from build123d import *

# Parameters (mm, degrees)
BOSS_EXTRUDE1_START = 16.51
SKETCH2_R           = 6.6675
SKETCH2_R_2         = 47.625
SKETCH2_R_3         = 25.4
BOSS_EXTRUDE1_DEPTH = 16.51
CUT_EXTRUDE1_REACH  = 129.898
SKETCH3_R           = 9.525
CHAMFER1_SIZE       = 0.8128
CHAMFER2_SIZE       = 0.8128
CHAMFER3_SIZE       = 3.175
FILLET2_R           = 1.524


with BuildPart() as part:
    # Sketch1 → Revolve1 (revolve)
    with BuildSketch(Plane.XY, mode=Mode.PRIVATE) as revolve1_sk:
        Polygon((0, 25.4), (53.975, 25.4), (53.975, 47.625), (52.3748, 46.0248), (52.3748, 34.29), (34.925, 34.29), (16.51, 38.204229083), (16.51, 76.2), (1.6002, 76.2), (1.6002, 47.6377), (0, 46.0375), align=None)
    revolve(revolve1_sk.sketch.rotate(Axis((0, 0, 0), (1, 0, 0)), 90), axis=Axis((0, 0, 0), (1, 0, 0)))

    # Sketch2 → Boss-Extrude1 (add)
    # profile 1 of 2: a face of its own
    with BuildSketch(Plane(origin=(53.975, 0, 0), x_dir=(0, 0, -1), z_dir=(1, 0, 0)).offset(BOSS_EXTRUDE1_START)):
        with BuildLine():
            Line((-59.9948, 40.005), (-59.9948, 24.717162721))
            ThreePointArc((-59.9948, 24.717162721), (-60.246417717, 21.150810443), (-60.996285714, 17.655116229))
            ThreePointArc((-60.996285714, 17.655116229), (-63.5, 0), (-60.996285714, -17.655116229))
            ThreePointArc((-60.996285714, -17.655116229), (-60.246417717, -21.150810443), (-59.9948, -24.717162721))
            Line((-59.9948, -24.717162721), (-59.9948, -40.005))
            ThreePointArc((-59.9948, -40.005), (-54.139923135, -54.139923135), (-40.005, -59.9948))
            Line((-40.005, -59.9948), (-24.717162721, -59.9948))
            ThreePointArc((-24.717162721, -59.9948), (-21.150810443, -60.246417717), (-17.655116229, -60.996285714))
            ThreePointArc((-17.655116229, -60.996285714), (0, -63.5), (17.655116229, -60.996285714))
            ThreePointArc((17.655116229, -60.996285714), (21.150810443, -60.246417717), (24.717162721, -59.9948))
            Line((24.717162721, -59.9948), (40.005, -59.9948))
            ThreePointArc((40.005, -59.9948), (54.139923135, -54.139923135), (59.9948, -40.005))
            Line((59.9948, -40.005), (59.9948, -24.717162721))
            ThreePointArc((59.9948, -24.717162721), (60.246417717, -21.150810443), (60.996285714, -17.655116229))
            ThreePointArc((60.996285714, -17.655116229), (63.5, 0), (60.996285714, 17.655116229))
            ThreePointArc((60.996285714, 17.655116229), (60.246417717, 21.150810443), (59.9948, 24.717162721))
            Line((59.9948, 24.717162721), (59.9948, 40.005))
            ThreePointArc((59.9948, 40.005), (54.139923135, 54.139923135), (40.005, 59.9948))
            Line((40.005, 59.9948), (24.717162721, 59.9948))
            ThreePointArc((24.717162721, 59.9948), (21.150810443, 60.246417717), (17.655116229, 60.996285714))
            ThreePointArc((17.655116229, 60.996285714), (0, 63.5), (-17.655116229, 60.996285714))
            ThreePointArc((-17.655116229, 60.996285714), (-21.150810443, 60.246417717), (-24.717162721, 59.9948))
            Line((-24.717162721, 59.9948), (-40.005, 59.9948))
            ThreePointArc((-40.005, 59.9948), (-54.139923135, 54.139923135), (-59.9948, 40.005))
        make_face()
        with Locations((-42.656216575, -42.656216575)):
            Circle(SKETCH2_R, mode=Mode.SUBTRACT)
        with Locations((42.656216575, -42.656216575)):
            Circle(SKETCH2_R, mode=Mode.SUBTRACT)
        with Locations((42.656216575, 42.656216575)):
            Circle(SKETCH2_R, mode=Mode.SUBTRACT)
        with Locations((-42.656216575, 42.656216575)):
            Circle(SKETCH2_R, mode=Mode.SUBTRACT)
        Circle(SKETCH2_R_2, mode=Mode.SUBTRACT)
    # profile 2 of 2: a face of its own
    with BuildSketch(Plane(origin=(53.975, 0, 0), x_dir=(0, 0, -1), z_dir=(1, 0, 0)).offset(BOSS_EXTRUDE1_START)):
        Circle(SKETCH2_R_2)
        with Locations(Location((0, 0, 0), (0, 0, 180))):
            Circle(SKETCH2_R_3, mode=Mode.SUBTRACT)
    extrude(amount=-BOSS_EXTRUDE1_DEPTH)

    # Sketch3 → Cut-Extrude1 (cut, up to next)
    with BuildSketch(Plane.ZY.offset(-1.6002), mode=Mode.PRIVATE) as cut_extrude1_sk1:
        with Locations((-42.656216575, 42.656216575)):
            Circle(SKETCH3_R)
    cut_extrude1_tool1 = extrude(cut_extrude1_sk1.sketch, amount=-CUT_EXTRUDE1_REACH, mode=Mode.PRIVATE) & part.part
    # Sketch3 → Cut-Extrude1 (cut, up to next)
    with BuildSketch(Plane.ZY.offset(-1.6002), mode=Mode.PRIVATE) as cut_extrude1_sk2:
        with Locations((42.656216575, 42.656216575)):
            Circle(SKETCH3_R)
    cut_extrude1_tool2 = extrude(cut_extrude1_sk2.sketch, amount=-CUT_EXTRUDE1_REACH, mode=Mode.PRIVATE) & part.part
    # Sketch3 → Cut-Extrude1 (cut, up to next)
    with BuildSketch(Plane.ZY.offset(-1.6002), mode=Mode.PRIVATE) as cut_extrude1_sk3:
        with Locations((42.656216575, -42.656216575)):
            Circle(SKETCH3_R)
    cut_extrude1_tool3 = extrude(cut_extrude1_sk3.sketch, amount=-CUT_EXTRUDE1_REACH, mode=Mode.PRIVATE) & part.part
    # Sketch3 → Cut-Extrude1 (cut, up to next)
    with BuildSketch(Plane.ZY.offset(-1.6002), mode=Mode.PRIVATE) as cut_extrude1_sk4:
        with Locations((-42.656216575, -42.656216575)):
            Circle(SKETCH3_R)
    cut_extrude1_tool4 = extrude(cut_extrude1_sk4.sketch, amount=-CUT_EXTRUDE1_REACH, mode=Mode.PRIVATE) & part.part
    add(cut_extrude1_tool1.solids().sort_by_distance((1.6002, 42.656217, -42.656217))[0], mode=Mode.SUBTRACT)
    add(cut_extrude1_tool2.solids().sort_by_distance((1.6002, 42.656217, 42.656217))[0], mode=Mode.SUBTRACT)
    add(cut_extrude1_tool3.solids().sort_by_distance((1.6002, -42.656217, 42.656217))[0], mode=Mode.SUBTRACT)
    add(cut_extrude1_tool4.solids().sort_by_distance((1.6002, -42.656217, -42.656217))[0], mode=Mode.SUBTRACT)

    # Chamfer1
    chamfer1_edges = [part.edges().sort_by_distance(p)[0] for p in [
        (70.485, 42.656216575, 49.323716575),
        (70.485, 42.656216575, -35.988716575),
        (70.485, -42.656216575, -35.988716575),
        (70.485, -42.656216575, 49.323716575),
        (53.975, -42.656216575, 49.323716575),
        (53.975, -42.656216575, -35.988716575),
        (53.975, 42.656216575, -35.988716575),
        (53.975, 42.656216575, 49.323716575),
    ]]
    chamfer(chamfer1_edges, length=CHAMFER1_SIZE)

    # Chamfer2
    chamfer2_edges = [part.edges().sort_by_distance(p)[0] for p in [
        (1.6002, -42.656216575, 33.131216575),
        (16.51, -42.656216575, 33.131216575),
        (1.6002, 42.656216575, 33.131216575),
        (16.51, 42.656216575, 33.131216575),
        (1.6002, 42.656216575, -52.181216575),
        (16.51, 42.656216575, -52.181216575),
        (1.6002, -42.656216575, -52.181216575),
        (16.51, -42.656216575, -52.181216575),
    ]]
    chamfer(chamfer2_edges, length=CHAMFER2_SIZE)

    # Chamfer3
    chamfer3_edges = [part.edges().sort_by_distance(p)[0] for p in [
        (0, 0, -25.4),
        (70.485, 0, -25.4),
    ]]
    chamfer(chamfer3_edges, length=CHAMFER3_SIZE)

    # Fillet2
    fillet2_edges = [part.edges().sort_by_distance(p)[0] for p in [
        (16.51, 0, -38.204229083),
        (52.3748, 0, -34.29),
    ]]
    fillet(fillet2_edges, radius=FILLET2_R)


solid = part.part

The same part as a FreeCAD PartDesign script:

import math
import FreeCAD as App
import Part
import Sketcher

V = App.Vector
Q = App.Units.Quantity


def edges_at(feature, points):
    """Names of the edges that pass closest to the given points."""
    edges = feature.Shape.Edges
    near = lambda p: min(range(len(edges)), key=lambda i: edges[i].distToShape(Part.Vertex(*p))[0])
    return sorted({f"Edge{near(p) + 1}" for p in points})


def add_polygon(sketch, points):
    """Adds a closed chain of lines whose ends are joined by coincident constraints."""
    first, n = sketch.GeometryCount, len(points)
    for a, b in zip(points, points[1:] + points[:1]):
        sketch.addGeometry(Part.LineSegment(App.Vector(*a, 0), App.Vector(*b, 0)), False)
    for i in range(n):
        sketch.addConstraint(Sketcher.Constraint("Coincident", first + i, 2, first + (i + 1) % n, 1))

doc = App.newDocument("Part")
body = doc.addObject("PartDesign::Body", "Body")

# Sketch on XY plane
sketch1 = body.newObject("Sketcher::SketchObject", "Sketch")
sketch1.AttachmentSupport = (doc.getObject("XY_Plane"), [""])
sketch1.MapMode = "FlatFace"
add_polygon(sketch1, [(0, 25.4), (54, 25.4), (54, 47.6), (52.4, 46), (52.4, 34.3), (34.9, 34.3), (16.5, 38.2), (16.5, 76.2), (1.6, 76.2), (1.6, 47.6), (0, 46)])  # lines 0-10
sketch1.addConstraint([
    Sketcher.Constraint("Horizontal", 0),
    Sketcher.Constraint("Vertical", 1),
    Sketcher.Constraint("Vertical", 3),
    Sketcher.Constraint("Horizontal", 4),
    Sketcher.Constraint("Vertical", 6),
    Sketcher.Constraint("Horizontal", 7),
    Sketcher.Constraint("Vertical", 8),
    Sketcher.Constraint("Vertical", 10),
    Sketcher.Constraint("PointOnObject", 9, 2, -2),
    Sketcher.Constraint("Parallel", 2, 9),
    Sketcher.Constraint("Equal", 2, 9),
    Sketcher.Constraint("DistanceY", -1, 1, 0, 2, Q("1 in")),
    Sketcher.Constraint("DistanceY", -1, 1, 6, 2, Q("3 in")),
    Sketcher.Constraint("Angle", 2, Q("-135 deg")),
    Sketcher.Constraint("Angle", 5, Q("168 deg")),
    Sketcher.Constraint("DistanceX", 0, 1, 0, 2, Q("2.125 in")),
    Sketcher.Constraint("DistanceX", 4, 2, 4, 1, Q("0.687 in")),
    Sketcher.Constraint("DistanceX", 7, 2, 7, 1, Q("0.587 in")),
    Sketcher.Constraint("DistanceY", 1, 1, 1, 2, Q("0.875 in")),
    Sketcher.Constraint("DistanceY", 3, 2, 3, 1, Q("0.462 in")),
    Sketcher.Constraint("DistanceY", 10, 2, 10, 1, Q("0.8125 in")),
    Sketcher.Constraint("DistanceY", -1, 1, 3, 2, Q("1.35 in")),
])
revolution = body.newObject("PartDesign::Revolution", "Revolution")
revolution.Profile = sketch1
revolution.ReferenceAxis = (sketch1, ["H_Axis"])
revolution.Angle = 360

# Sketch on YZ plane
sketch2 = body.newObject("Sketcher::SketchObject", "Sketch001")
sketch2.AttachmentSupport = (doc.getObject("YZ_Plane"), [""])
sketch2.MapMode = "FlatFace"
sketch2.AttachmentOffset = App.Placement(V(0, 0, 2.775 * 25.4), App.Rotation())
sketch2.addGeometry([
    Part.LineSegment(V(40, 60, 0), V(25, 60, 0)),  # 0
    Part.ArcOfCircle(Part.Circle(V(25, 85, 0), V(0, 0, 1), 25), math.radians(-106.14), math.radians(-90)),  # 1
    Part.ArcOfCircle(Part.Circle(V(0, 0, 0), V(0, 0, 1), 63), math.radians(74), math.radians(106)),  # 2
    Part.ArcOfCircle(Part.Circle(V(-25, 85, 0), V(0, 0, 1), 25), math.radians(-90), math.radians(-73.86)),  # 3
    Part.LineSegment(V(-25, 60, 0), V(-40, 60, 0)),  # 4
    Part.ArcOfCircle(Part.Circle(V(-40, 40, 0), V(0, 0, 1), 20), math.radians(90), math.radians(180)),  # 5
    Part.LineSegment(V(-60, 40, 0), V(-60, 25, 0)),  # 6
    Part.ArcOfCircle(Part.Circle(V(-85, 25, 0), V(0, 0, 1), 25), math.radians(-16.14), math.radians(0)),  # 7
    Part.ArcOfCircle(Part.Circle(V(0, 0, 0), V(0, 0, 1), 63), math.radians(164), math.radians(196)),  # 8
    Part.ArcOfCircle(Part.Circle(V(-85, -25, 0), V(0, 0, 1), 25), math.radians(0), math.radians(16.14)),  # 9
    Part.LineSegment(V(-60, -25, 0), V(-60, -40, 0)),  # 10
    Part.ArcOfCircle(Part.Circle(V(-40, -40, 0), V(0, 0, 1), 20), math.radians(180), math.radians(270)),  # 11
    Part.LineSegment(V(-40, -60, 0), V(-25, -60, 0)),  # 12
    Part.ArcOfCircle(Part.Circle(V(-25, -85, 0), V(0, 0, 1), 25), math.radians(73.86), math.radians(90)),  # 13
    Part.ArcOfCircle(Part.Circle(V(0, 0, 0), V(0, 0, 1), 63), math.radians(-106), math.radians(-74)),  # 14
    Part.ArcOfCircle(Part.Circle(V(25, -85, 0), V(0, 0, 1), 25), math.radians(90), math.radians(106.14)),  # 15
    Part.LineSegment(V(25, -60, 0), V(40, -60, 0)),  # 16
    Part.ArcOfCircle(Part.Circle(V(40, -40, 0), V(0, 0, 1), 20), math.radians(-90), math.radians(0)),  # 17
    Part.LineSegment(V(60, -40, 0), V(60, -25, 0)),  # 18
    Part.ArcOfCircle(Part.Circle(V(85, -25, 0), V(0, 0, 1), 25), math.radians(163.86), math.radians(180)),  # 19
    Part.ArcOfCircle(Part.Circle(V(0, 0, 0), V(0, 0, 1), 63), math.radians(-16), math.radians(16)),  # 20
    Part.ArcOfCircle(Part.Circle(V(85, 25, 0), V(0, 0, 1), 25), math.radians(180), math.radians(196.14)),  # 21
    Part.LineSegment(V(60, 25, 0), V(60, 40, 0)),  # 22
    Part.ArcOfCircle(Part.Circle(V(40, 40, 0), V(0, 0, 1), 20), math.radians(0), math.radians(90)),  # 23
    Part.Circle(V(-43, 43, 0), V(0, 0, 1), 7),  # 24
    Part.Circle(V(-43, -43, 0), V(0, 0, 1), 7),  # 25
    Part.Circle(V(43, 43, 0), V(0, 0, 1), 7),  # 26
    Part.Circle(V(43, -43, 0), V(0, 0, 1), 7),  # 27
    Part.Circle(V(0, 0, 0), V(0, 0, 1), 25),  # 28
], False)
sketch2.addConstraint([
    Sketcher.Constraint("Tangent", 0, 2, 1, 2),
    Sketcher.Constraint("Tangent", 1, 1, 2, 1),
    Sketcher.Constraint("Tangent", 2, 2, 3, 2),
    Sketcher.Constraint("Tangent", 3, 1, 4, 1),
    Sketcher.Constraint("Tangent", 4, 2, 5, 1),
    Sketcher.Constraint("Tangent", 5, 2, 6, 1),
    Sketcher.Constraint("Tangent", 6, 2, 7, 2),
    Sketcher.Constraint("Tangent", 7, 1, 8, 1),
    Sketcher.Constraint("Tangent", 8, 2, 9, 2),
    Sketcher.Constraint("Tangent", 9, 1, 10, 1),
    Sketcher.Constraint("Tangent", 10, 2, 11, 1),
    Sketcher.Constraint("Tangent", 11, 2, 12, 1),
    Sketcher.Constraint("Tangent", 12, 2, 13, 2),
    Sketcher.Constraint("Tangent", 13, 1, 14, 1),
    Sketcher.Constraint("Tangent", 14, 2, 15, 2),
    Sketcher.Constraint("Tangent", 15, 1, 16, 1),
    Sketcher.Constraint("Tangent", 16, 2, 17, 1),
    Sketcher.Constraint("Tangent", 17, 2, 18, 1),
    Sketcher.Constraint("Tangent", 18, 2, 19, 2),
    Sketcher.Constraint("Tangent", 19, 1, 20, 1),
    Sketcher.Constraint("Tangent", 20, 2, 21, 2),
    Sketcher.Constraint("Tangent", 21, 1, 22, 1),
    Sketcher.Constraint("Tangent", 22, 2, 23, 1),
    Sketcher.Constraint("Tangent", 23, 2, 0, 1),
    Sketcher.Constraint("Horizontal", 0),
    Sketcher.Constraint("Horizontal", 4),
    Sketcher.Constraint("Vertical", 6),
    Sketcher.Constraint("Vertical", 10),
    Sketcher.Constraint("Horizontal", 12),
    Sketcher.Constraint("Horizontal", 16),
    Sketcher.Constraint("Vertical", 18),
    Sketcher.Constraint("Vertical", 22),
    Sketcher.Constraint("Coincident", 2, 3, -1, 1),
    Sketcher.Constraint("Coincident", 8, 3, -1, 1),
    Sketcher.Constraint("Coincident", 14, 3, -1, 1),
    Sketcher.Constraint("Coincident", 20, 3, -1, 1),
    Sketcher.Constraint("Coincident", 28, 3, -1, 1),
    Sketcher.Constraint("Equal", 1, 3),
    Sketcher.Constraint("Equal", 3, 7),
    Sketcher.Constraint("Equal", 2, 8),
    Sketcher.Constraint("Equal", 7, 9),
    Sketcher.Constraint("Equal", 5, 11),
    Sketcher.Constraint("Equal", 9, 13),
    Sketcher.Constraint("Equal", 8, 14),
    Sketcher.Constraint("Equal", 13, 15),
    Sketcher.Constraint("Equal", 11, 17),
    Sketcher.Constraint("Equal", 15, 19),
    Sketcher.Constraint("Equal", 14, 20),
    Sketcher.Constraint("Equal", 19, 21),
    Sketcher.Constraint("Equal", 17, 23),
    Sketcher.Constraint("Equal", 24, 25),
    Sketcher.Constraint("Equal", 25, 26),
    Sketcher.Constraint("Equal", 26, 27),
    Sketcher.Constraint("Equal", 21, 28),
    Sketcher.Constraint("Symmetric", 5, 3, 17, 3, -1, 1),
    Sketcher.Constraint("Symmetric", 11, 3, 23, 3, -1, 1),
    Sketcher.Constraint("Symmetric", 25, 3, 26, 3, -1, 1),
    Sketcher.Constraint("Symmetric", 24, 3, 27, 3, -1, 1),
    Sketcher.Constraint("Symmetric", 11, 3, 17, 3, -2),
    Sketcher.Constraint("Symmetric", 24, 3, 26, 3, -2),
    Sketcher.Constraint("Equal", 16, 6),
    Sketcher.Constraint("Diameter", 28, Q("2 in")),
    Sketcher.Constraint("Radius", 2, Q("2.5 in")),
    Sketcher.Constraint("Diameter", 24, Q("0.525 in")),
    Sketcher.Constraint("Radius", 5, Q("0.787 in")),
    Sketcher.Constraint("DistanceY", 11, 3, 5, 3, Q("3.15 in")),
    Sketcher.Constraint("DistanceX", 1, 1, 26, 3, 25.0011),
    Sketcher.Constraint("DistanceY", 7, 1, 24, 3, 25.0011),
])
pad1 = body.newObject("PartDesign::Pad", "Pad")
pad1.Profile = sketch2
pad1.Length = Q("0.65 in")
pad1.Reversed = True

# Sketch on YZ plane
sketch3 = body.newObject("Sketcher::SketchObject", "Sketch002")
sketch3.AttachmentSupport = (doc.getObject("YZ_Plane"), [""])
sketch3.MapMode = "FlatFace"
sketch3.AttachmentOffset = App.Placement(V(0, 0, 0.063 * 25.4), App.Rotation())
sketch3.addGeometry(Part.Circle(V(43, -43, 0), V(0, 0, 1), 10), False)
sketch3.addConstraint([
    Sketcher.Constraint("Diameter", 0, Q("0.75 in")),
    Sketcher.Constraint("DistanceX", -1, 1, 0, 3, 42.656217),
    Sketcher.Constraint("DistanceY", 0, 3, -1, 1, 42.656217),
])
pocket1 = body.newObject("PartDesign::Pocket", "Pocket")
pocket1.Profile = sketch3
pocket1.Type = "UpToFirst"
pocket1.Reversed = True

# Sketch on YZ plane
sketch4 = body.newObject("Sketcher::SketchObject", "Sketch003")
sketch4.AttachmentSupport = (doc.getObject("YZ_Plane"), [""])
sketch4.MapMode = "FlatFace"
sketch4.AttachmentOffset = App.Placement(V(0, 0, 0.063 * 25.4), App.Rotation())
sketch4.addGeometry(Part.Circle(V(43, 43, 0), V(0, 0, 1), 10), False)
sketch4.addConstraint([
    Sketcher.Constraint("Diameter", 0, Q("0.75 in")),
    Sketcher.Constraint("DistanceX", -1, 1, 0, 3, 42.656217),
    Sketcher.Constraint("DistanceY", -1, 1, 0, 3, 42.656217),
])
pocket2 = body.newObject("PartDesign::Pocket", "Pocket001")
pocket2.Profile = sketch4
pocket2.Type = "UpToFirst"
pocket2.Reversed = True

# Sketch on YZ plane
sketch5 = body.newObject("Sketcher::SketchObject", "Sketch004")
sketch5.AttachmentSupport = (doc.getObject("YZ_Plane"), [""])
sketch5.MapMode = "FlatFace"
sketch5.AttachmentOffset = App.Placement(V(0, 0, 0.063 * 25.4), App.Rotation())
sketch5.addGeometry(Part.Circle(V(-43, 43, 0), V(0, 0, 1), 10), False)
sketch5.addConstraint([
    Sketcher.Constraint("Diameter", 0, Q("0.75 in")),
    Sketcher.Constraint("DistanceX", 0, 3, -1, 1, 42.656217),
    Sketcher.Constraint("DistanceY", -1, 1, 0, 3, 42.656217),
])
pocket3 = body.newObject("PartDesign::Pocket", "Pocket002")
pocket3.Profile = sketch5
pocket3.Type = "UpToFirst"
pocket3.Reversed = True

# Sketch on YZ plane
sketch6 = body.newObject("Sketcher::SketchObject", "Sketch005")
sketch6.AttachmentSupport = (doc.getObject("YZ_Plane"), [""])
sketch6.MapMode = "FlatFace"
sketch6.AttachmentOffset = App.Placement(V(0, 0, 0.063 * 25.4), App.Rotation())
sketch6.addGeometry(Part.Circle(V(-43, -43, 0), V(0, 0, 1), 10), False)
sketch6.addConstraint([
    Sketcher.Constraint("Diameter", 0, Q("0.75 in")),
    Sketcher.Constraint("DistanceX", 0, 3, -1, 1, 42.656217),
    Sketcher.Constraint("DistanceY", 0, 3, -1, 1, 42.656217),
])
pocket4 = body.newObject("PartDesign::Pocket", "Pocket003")
pocket4.Profile = sketch6
pocket4.Type = "UpToFirst"
pocket4.Reversed = True
doc.recompute()

chamfer = body.newObject("PartDesign::Chamfer", "Chamfer")
chamfer.Base = (pocket4, edges_at(pocket4, [
    (70.485, 42.656, 49.324),
    (70.485, 42.656, -35.989),
    (70.485, -42.656, -35.989),
    (70.485, -42.656, 49.324),
    (53.975, -42.656, 49.324),
    (53.975, -42.656, -35.989),
    (53.975, 42.656, -35.989),
    (53.975, 42.656, 49.324),
]))
chamfer.Size = Q("0.032 in")
doc.recompute()

chamfer2 = body.newObject("PartDesign::Chamfer", "Chamfer001")
chamfer2.Base = (chamfer, edges_at(chamfer, [
    (1.6, -42.656, 33.131),
    (16.51, -42.656, 33.131),
    (1.6, 42.656, 33.131),
    (16.51, 42.656, 33.131),
    (1.6, 42.656, -52.181),
    (16.51, 42.656, -52.181),
    (1.6, -42.656, -52.181),
    (16.51, -42.656, -52.181),
]))
chamfer2.Size = Q("0.032 in")
doc.recompute()

chamfer3 = body.newObject("PartDesign::Chamfer", "Chamfer002")
chamfer3.Base = (chamfer2, edges_at(chamfer2, [(0, 0, -25.4), (70.485, 0, -25.4)]))
chamfer3.Size = Q("0.125 in")
doc.recompute()

fillet = body.newObject("PartDesign::Fillet", "Fillet")
fillet.Base = (chamfer3, edges_at(chamfer3, [(16.51, 0, -38.204), (52.375, 0, -34.29)]))
fillet.Radius = Q("0.06 in")

doc.recompute()
